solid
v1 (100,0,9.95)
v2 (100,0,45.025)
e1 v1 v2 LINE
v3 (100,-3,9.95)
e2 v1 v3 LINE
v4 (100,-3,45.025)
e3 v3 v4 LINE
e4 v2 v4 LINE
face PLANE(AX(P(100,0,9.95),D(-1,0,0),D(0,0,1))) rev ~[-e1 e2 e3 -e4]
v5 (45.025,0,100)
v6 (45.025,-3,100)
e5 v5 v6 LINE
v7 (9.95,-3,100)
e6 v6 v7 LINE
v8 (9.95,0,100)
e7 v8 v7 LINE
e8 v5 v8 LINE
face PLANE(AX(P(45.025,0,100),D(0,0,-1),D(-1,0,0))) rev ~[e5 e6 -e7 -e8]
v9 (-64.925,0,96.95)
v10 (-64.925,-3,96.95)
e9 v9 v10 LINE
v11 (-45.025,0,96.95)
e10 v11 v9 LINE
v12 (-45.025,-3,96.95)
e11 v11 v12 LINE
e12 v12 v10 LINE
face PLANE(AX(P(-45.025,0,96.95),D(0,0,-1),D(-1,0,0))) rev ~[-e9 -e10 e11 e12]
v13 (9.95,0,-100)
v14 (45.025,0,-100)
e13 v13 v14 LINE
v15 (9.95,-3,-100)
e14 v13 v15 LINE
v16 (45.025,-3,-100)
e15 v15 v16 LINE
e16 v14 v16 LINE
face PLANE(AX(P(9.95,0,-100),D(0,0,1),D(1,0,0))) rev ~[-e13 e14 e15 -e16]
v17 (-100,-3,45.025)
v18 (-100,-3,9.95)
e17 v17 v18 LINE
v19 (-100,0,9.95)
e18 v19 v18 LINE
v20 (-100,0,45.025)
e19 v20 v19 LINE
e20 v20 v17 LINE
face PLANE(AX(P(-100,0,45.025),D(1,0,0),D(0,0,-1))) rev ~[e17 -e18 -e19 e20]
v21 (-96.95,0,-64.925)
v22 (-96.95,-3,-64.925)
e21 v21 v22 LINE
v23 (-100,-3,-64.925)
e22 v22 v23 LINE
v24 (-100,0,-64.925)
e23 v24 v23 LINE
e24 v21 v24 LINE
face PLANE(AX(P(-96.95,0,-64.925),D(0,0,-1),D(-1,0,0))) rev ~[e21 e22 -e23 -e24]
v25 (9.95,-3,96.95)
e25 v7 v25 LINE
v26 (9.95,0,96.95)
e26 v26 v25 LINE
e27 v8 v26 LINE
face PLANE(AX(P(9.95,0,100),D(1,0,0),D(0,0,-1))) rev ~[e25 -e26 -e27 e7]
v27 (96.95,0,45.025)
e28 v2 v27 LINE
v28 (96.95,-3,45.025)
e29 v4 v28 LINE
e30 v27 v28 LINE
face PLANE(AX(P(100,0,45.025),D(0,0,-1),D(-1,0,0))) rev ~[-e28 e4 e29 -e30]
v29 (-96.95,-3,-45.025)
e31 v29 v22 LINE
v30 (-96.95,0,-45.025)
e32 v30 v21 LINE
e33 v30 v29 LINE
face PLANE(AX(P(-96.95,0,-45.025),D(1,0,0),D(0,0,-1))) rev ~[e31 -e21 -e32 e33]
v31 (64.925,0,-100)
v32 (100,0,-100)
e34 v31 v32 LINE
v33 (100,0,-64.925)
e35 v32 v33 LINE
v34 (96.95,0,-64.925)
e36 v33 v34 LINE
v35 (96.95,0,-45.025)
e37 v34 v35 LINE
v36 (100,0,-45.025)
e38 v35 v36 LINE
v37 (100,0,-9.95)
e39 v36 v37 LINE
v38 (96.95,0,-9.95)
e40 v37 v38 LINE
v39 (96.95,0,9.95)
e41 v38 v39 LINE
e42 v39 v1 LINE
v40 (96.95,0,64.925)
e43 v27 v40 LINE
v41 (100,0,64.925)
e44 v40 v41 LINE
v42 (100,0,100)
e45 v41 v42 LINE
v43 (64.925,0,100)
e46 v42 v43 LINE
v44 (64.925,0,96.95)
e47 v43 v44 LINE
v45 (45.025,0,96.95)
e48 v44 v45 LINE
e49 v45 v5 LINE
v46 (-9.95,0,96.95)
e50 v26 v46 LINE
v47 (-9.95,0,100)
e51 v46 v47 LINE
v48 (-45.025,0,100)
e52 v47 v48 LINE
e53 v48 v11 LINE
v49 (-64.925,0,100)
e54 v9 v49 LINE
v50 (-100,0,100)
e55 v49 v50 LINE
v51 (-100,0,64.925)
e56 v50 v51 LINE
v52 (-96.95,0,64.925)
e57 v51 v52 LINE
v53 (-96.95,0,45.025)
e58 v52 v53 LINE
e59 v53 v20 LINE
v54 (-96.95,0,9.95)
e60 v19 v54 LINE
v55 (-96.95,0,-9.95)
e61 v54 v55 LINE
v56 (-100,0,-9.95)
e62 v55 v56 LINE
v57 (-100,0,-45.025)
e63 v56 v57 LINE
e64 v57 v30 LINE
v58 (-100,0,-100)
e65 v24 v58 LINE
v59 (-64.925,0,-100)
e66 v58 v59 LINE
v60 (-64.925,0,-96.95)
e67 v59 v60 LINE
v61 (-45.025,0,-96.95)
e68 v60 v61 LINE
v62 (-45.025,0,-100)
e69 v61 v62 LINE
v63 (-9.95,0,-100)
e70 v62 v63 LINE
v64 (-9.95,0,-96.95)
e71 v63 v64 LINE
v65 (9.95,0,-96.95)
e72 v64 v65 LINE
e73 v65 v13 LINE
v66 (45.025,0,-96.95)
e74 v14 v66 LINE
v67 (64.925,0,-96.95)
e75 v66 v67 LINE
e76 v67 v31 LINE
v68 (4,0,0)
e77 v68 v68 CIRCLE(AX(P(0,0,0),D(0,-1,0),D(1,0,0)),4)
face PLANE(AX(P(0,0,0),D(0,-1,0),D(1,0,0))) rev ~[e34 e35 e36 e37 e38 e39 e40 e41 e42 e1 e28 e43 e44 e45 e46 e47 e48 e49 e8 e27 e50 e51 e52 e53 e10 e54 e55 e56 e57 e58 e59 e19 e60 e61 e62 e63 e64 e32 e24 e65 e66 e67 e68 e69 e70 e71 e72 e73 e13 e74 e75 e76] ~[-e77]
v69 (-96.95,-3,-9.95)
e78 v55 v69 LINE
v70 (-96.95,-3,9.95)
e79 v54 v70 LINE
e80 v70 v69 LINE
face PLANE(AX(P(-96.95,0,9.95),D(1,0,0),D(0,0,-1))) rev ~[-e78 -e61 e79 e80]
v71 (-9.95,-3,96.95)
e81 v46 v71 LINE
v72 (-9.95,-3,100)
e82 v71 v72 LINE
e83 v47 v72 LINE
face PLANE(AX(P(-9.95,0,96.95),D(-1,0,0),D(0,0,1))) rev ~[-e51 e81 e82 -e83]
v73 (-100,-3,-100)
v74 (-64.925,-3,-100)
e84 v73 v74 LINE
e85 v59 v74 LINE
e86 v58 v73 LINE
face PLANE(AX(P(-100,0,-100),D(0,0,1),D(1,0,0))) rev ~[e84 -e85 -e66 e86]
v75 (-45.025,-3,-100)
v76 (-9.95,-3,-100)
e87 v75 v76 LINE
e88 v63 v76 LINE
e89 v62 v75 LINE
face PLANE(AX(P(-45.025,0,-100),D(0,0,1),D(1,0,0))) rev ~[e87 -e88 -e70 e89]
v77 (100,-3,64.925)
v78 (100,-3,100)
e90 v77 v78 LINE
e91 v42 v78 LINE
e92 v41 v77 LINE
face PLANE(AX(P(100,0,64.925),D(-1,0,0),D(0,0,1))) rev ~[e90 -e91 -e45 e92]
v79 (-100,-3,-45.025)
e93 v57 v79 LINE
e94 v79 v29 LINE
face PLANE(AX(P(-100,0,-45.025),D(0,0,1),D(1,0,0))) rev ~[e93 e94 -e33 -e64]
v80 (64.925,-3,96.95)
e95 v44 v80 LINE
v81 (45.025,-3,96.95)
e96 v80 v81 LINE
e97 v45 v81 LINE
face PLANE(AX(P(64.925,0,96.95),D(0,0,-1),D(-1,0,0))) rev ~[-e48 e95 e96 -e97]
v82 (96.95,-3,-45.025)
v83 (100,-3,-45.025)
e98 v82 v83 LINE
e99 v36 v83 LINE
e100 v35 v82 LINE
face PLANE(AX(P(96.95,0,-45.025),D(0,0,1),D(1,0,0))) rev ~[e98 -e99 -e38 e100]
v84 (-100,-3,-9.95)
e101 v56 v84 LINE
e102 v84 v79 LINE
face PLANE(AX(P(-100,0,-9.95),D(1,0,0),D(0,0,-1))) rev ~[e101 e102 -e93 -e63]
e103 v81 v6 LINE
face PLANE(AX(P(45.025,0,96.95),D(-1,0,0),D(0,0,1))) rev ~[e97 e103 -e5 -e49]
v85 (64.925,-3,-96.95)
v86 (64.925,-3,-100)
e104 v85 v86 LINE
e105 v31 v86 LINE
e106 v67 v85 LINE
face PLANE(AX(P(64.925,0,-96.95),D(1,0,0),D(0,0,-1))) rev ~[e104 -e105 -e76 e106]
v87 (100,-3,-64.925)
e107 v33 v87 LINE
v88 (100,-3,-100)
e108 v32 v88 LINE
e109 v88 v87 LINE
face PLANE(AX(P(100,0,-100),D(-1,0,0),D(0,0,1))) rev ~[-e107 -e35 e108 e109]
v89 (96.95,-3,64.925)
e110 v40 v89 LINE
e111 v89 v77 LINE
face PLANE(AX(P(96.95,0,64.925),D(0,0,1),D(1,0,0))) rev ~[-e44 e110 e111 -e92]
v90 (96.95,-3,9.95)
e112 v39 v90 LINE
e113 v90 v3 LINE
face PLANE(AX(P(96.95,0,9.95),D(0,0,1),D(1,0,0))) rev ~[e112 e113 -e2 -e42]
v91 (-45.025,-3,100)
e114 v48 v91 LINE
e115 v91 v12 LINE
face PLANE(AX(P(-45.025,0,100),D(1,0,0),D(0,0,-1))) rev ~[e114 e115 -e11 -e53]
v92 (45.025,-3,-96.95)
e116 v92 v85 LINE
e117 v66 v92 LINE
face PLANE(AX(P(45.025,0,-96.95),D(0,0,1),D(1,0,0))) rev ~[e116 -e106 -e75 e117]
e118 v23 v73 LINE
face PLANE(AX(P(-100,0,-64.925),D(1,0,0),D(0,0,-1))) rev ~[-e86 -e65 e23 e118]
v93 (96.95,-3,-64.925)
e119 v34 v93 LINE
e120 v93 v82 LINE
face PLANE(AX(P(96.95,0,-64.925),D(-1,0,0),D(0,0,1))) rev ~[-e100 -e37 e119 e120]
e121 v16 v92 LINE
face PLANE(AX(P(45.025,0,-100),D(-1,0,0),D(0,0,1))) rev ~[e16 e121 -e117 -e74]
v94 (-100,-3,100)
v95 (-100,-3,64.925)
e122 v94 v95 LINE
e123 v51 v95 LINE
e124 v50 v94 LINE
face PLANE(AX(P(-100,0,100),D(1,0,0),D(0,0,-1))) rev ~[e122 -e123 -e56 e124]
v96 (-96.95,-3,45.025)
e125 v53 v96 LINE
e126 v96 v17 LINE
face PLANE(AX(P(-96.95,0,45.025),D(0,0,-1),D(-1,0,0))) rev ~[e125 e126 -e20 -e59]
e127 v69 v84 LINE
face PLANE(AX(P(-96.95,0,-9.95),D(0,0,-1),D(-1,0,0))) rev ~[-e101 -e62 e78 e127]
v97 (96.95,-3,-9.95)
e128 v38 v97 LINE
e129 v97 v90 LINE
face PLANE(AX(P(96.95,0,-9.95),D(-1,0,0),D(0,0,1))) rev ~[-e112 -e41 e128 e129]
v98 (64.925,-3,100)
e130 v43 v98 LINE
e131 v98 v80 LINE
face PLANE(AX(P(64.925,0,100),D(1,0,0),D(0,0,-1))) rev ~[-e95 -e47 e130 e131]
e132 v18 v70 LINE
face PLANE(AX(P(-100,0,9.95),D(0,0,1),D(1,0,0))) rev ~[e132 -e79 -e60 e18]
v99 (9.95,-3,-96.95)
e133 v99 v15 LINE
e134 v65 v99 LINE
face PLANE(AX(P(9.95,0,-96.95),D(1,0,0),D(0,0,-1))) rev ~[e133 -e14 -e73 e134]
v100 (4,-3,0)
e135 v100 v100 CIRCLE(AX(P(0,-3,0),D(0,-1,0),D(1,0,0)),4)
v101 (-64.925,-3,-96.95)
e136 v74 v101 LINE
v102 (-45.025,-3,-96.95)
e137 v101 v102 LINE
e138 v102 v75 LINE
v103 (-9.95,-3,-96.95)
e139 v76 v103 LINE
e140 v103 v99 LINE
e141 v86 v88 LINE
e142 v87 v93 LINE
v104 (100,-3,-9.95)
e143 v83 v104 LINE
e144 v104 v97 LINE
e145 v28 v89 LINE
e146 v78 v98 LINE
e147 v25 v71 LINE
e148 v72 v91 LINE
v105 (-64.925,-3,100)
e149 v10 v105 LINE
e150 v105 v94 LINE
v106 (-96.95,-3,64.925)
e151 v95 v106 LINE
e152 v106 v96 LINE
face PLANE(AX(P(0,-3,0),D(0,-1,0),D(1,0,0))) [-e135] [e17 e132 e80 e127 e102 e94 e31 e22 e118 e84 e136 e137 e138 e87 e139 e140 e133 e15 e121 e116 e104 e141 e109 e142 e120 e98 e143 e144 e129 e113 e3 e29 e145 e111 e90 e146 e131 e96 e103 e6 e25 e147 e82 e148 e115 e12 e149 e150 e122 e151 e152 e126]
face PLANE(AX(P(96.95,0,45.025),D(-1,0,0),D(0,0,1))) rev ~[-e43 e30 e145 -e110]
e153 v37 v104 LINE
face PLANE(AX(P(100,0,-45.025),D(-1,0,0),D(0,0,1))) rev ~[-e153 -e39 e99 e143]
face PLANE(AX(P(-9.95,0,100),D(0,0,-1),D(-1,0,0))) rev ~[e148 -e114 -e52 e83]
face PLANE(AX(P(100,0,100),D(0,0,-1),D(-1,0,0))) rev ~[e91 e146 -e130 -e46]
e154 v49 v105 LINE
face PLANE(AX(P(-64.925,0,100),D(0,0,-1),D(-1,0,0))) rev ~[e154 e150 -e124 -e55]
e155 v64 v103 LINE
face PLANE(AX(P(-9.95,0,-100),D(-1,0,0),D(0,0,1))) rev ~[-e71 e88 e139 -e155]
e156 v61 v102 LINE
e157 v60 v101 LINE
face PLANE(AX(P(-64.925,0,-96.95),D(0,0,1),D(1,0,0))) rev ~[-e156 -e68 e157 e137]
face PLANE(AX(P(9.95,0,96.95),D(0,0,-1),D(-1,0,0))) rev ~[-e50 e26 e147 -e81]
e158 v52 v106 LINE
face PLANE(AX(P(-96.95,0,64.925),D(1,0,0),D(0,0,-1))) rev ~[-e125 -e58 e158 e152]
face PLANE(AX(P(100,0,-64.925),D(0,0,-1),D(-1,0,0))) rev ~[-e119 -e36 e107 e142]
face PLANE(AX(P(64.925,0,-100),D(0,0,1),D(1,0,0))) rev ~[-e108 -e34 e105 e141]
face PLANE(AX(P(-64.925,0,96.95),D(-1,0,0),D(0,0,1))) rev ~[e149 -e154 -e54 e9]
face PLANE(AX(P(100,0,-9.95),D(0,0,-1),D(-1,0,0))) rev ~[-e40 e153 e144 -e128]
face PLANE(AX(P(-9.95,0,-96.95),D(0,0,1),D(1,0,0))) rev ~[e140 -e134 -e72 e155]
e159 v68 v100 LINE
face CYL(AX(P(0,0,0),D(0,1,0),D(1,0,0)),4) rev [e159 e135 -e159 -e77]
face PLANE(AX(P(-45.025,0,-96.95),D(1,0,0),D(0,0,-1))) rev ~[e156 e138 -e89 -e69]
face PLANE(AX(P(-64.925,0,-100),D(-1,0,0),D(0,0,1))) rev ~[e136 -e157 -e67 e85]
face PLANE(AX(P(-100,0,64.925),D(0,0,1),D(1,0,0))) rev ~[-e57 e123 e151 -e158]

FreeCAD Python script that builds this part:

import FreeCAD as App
import Part
import Sketcher
from FreeCAD import Vector


def add_polygon(sketch, points):
    """Adds a closed chain of lines whose ends are joined by coincident constraints."""
    first, n = sketch.GeometryCount, len(points)
    for a, b in zip(points, points[1:] + points[:1]):
        sketch.addGeometry(Part.LineSegment(App.Vector(*a, 0), App.Vector(*b, 0)), False)
    for i in range(n):
        sketch.addConstraint(Sketcher.Constraint("Coincident", first + i, 2, first + (i + 1) % n, 1))

doc = App.newDocument("Part")
params = doc.addObject("Spreadsheet::Sheet", "Params")
for row, (alias, value) in enumerate([
    ("sketch1_diameter", "8 mm"),
    ("sketch1_width", "19.9 mm"),
    ("sketch1_width2", "3.05 mm"),
    ("pad1_length", "3 mm"),
], start=1):
    params.set(f"A{row}", alias)
    params.set(f"B{row}", "=" + value)
    params.setAlias(f"B{row}", alias)

body = doc.addObject("PartDesign::Body", "Body")

sketch1 = doc.addObject("Sketcher::SketchObject", "Sketch")
body.addObject(sketch1)
sketch1.AttachmentSupport = (doc.XZ_Plane, [""])
sketch1.MapMode = "FlatFace"
add_polygon(sketch1, [(64.925, -100), (100, -100), (100, -64.925), (96.95, -64.925), (96.95, -45.025), (100, -45.025), (100, -9.95), (96.95, -9.95), (96.95, 9.95), (100, 9.95), (100, 45.025), (96.95, 45.025), (96.95, 64.925), (100, 64.925), (100, 100), (64.925, 100), (64.925, 96.95), (45.025, 96.95), (45.025, 100), (9.95, 100), (9.95, 96.95), (-9.95, 96.95), (-9.95, 100), (-45.025, 100), (-45.025, 96.95), (-64.925, 96.95), (-64.925, 100), (-100, 100), (-100, 64.925), (-96.95, 64.925), (-96.95, 45.025), (-100, 45.025), (-100, 9.95), (-96.95, 9.95), (-96.95, -9.95), (-100, -9.95), (-100, -45.025), (-96.95, -45.025), (-96.95, -64.925), (-100, -64.925), (-100, -100), (-64.925, -100), (-64.925, -96.95), (-45.025, -96.95), (-45.025, -100), (-9.95, -100), (-9.95, -96.95), (9.95, -96.95), (9.95, -100), (45.025, -100), (45.025, -96.95), (64.925, -96.95)])
sketch1.addGeometry(Part.Circle(Vector(0, 0, 0), Vector(0, 0, 1), 4), False)
sketch1.addConstraint(Sketcher.Constraint("Horizontal", 0))
sketch1.addConstraint(Sketcher.Constraint("Vertical", 1))
sketch1.addConstraint(Sketcher.Constraint("Horizontal", 2))
sketch1.addConstraint(Sketcher.Constraint("Vertical", 3))
sketch1.addConstraint(Sketcher.Constraint("Horizontal", 4))
sketch1.addConstraint(Sketcher.Constraint("Vertical", 5))
sketch1.addConstraint(Sketcher.Constraint("Horizontal", 6))
sketch1.addConstraint(Sketcher.Constraint("Vertical", 7))
sketch1.addConstraint(Sketcher.Constraint("Horizontal", 8))
sketch1.addConstraint(Sketcher.Constraint("Vertical", 9))
sketch1.addConstraint(Sketcher.Constraint("Horizontal", 10))
sketch1.addConstraint(Sketcher.Constraint("Vertical", 11))
sketch1.addConstraint(Sketcher.Constraint("Horizontal", 12))
sketch1.addConstraint(Sketcher.Constraint("Vertical", 13))
sketch1.addConstraint(Sketcher.Constraint("Horizontal", 14))
sketch1.addConstraint(Sketcher.Constraint("Vertical", 15))
sketch1.addConstraint(Sketcher.Constraint("Horizontal", 16))
sketch1.addConstraint(Sketcher.Constraint("Vertical", 17))
sketch1.addConstraint(Sketcher.Constraint("Horizontal", 18))
sketch1.addConstraint(Sketcher.Constraint("Vertical", 19))
sketch1.addConstraint(Sketcher.Constraint("Horizontal", 20))
sketch1.addConstraint(Sketcher.Constraint("Vertical", 21))
sketch1.addConstraint(Sketcher.Constraint("Horizontal", 22))
sketch1.addConstraint(Sketcher.Constraint("Vertical", 23))
sketch1.addConstraint(Sketcher.Constraint("Horizontal", 24))
sketch1.addConstraint(Sketcher.Constraint("Vertical", 25))
sketch1.addConstraint(Sketcher.Constraint("Horizontal", 26))
sketch1.addConstraint(Sketcher.Constraint("Vertical", 27))
sketch1.addConstraint(Sketcher.Constraint("Horizontal", 28))
sketch1.addConstraint(Sketcher.Constraint("Vertical", 29))
sketch1.addConstraint(Sketcher.Constraint("Horizontal", 30))
sketch1.addConstraint(Sketcher.Constraint("Vertical", 31))
sketch1.addConstraint(Sketcher.Constraint("Horizontal", 32))
sketch1.addConstraint(Sketcher.Constraint("Vertical", 33))
sketch1.addConstraint(Sketcher.Constraint("Horizontal", 34))
sketch1.addConstraint(Sketcher.Constraint("Vertical", 35))
sketch1.addConstraint(Sketcher.Constraint("Horizontal", 36))
sketch1.addConstraint(Sketcher.Constraint("Vertical", 37))
sketch1.addConstraint(Sketcher.Constraint("Horizontal", 38))
sketch1.addConstraint(Sketcher.Constraint("Vertical", 39))
sketch1.addConstraint(Sketcher.Constraint("Horizontal", 40))
sketch1.addConstraint(Sketcher.Constraint("Vertical", 41))
sketch1.addConstraint(Sketcher.Constraint("Horizontal", 42))
sketch1.addConstraint(Sketcher.Constraint("Vertical", 43))
sketch1.addConstraint(Sketcher.Constraint("Horizontal", 44))
sketch1.addConstraint(Sketcher.Constraint("Vertical", 45))
sketch1.addConstraint(Sketcher.Constraint("Horizontal", 46))
sketch1.addConstraint(Sketcher.Constraint("Vertical", 47))
sketch1.addConstraint(Sketcher.Constraint("Horizontal", 48))
sketch1.addConstraint(Sketcher.Constraint("Vertical", 49))
sketch1.addConstraint(Sketcher.Constraint("Horizontal", 50))
sketch1.addConstraint(Sketcher.Constraint("Vertical", 51))
sketch1.addConstraint(Sketcher.Constraint("Coincident", 52, 3, -1, 1))
sketch1.addConstraint(Sketcher.Constraint("Symmetric", 0, 2, 26, 2, -1, 1))
sketch1.addConstraint(Sketcher.Constraint("Symmetric", 2, 2, 28, 2, -1, 1))
sketch1.addConstraint(Sketcher.Constraint("Symmetric", 4, 2, 30, 2, -1, 1))
sketch1.addConstraint(Sketcher.Constraint("Symmetric", 6, 2, 32, 2, -1, 1))
sketch1.addConstraint(Sketcher.Constraint("Symmetric", 8, 2, 34, 2, -1, 1))
sketch1.addConstraint(Sketcher.Constraint("Symmetric", 10, 2, 36, 2, -1, 1))
sketch1.addConstraint(Sketcher.Constraint("Symmetric", 12, 2, 38, 2, -1, 1))
sketch1.addConstraint(Sketcher.Constraint("Symmetric", 14, 2, 40, 2, -1, 1))
sketch1.addConstraint(Sketcher.Constraint("Symmetric", 16, 2, 42, 2, -1, 1))
sketch1.addConstraint(Sketcher.Constraint("Symmetric", 18, 2, 44, 2, -1, 1))
sketch1.addConstraint(Sketcher.Constraint("Symmetric", 20, 2, 46, 2, -1, 1))
sketch1.addConstraint(Sketcher.Constraint("Symmetric", 22, 2, 48, 2, -1, 1))
sketch1.addConstraint(Sketcher.Constraint("Symmetric", 24, 2, 50, 2, -1, 1))
sketch1.addConstraint(Sketcher.Constraint("Symmetric", 18, 2, 21, 2, -2))
sketch1.addConstraint(Sketcher.Constraint("Symmetric", 16, 2, 23, 2, -2))
sketch1.addConstraint(Sketcher.Constraint("Symmetric", 14, 2, 25, 2, -2))
sketch1.addConstraint(Sketcher.Constraint("Symmetric", 12, 2, 27, 2, -2))
sketch1.addConstraint(Sketcher.Constraint("Symmetric", 10, 2, 29, 2, -2))
sketch1.addConstraint(Sketcher.Constraint("Symmetric", 8, 2, 31, 2, -2))
sketch1.addConstraint(Sketcher.Constraint("Horizontal", 14, 2, 17, 2))
sketch1.addConstraint(Sketcher.Constraint("Horizontal", 16, 2, 19, 2))
sketch1.addConstraint(Sketcher.Constraint("Vertical", 1, 2, 4, 2))
sketch1.addConstraint(Sketcher.Constraint("Vertical", 3, 2, 6, 2))
sketch1.addConstraint(Sketcher.Constraint("Equal", 14, 18))
sketch1.addConstraint(Sketcher.Constraint("Equal", 16, 20))
sketch1.addConstraint(Sketcher.Constraint("Equal", 48, 1))
sketch1.addConstraint(Sketcher.Constraint("Equal", 50, 3))
sketch1.addConstraint(Sketcher.Constraint("Equal", 1, 5))
sketch1.addConstraint(Sketcher.Constraint("Equal", 3, 7))
sketch1.addConstraint(Sketcher.Constraint("Equal", 38, 15))
sketch1.addConstraint(Sketcher.Constraint("Diameter", 52, 8.0))
sketch1.addConstraint(Sketcher.Constraint("DistanceX", 16, 2, 16, 1, 19.9))
sketch1.addConstraint(Sketcher.Constraint("DistanceX", -1, 1, 0, 2, 100.0))
sketch1.addConstraint(Sketcher.Constraint("DistanceX", 2, 2, 2, 1, 3.05))
sketch1.setExpression("Constraints[135]", "Params.sketch1_diameter")
sketch1.setExpression("Constraints[136]", "Params.sketch1_width")
sketch1.setExpression("Constraints[138]", "Params.sketch1_width2")
pad1 = doc.addObject("PartDesign::Pad", "Pad")
body.addObject(pad1)
pad1.Profile = sketch1
pad1.setExpression("Length", "Params.pad1_length")

doc.recompute()
